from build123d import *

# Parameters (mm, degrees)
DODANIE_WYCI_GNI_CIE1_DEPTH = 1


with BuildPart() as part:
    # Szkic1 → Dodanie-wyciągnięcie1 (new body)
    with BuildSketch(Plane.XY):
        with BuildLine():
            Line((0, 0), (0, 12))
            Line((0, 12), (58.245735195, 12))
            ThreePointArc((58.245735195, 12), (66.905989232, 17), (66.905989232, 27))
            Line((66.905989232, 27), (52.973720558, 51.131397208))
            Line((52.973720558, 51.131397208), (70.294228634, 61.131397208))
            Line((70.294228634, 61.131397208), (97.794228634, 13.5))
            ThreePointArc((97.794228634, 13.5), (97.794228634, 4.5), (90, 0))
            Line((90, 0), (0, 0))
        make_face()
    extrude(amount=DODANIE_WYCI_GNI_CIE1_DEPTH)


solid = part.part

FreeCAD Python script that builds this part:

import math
import FreeCAD as App
import Part
import Sketcher
Q = App.Units.Quantity

doc = App.newDocument("Part")
body = doc.addObject("PartDesign::Body", "Body")

# Sketch on XY plane
sketch1 = doc.addObject("Sketcher::SketchObject", "Sketch")
body.addObject(sketch1)
sketch1.AttachmentSupport = (doc.XY_Plane, [""])
sketch1.MapMode = "FlatFace"
sketch1.addGeometry([
    Part.LineSegment(App.Vector(0, 12, 0), App.Vector(0, 0, 0)),  # 0
    Part.LineSegment(App.Vector(0, 0, 0), App.Vector(90, 0, 0)),  # 1
    Part.ArcOfCircle(Part.Circle(App.Vector(90, 9, 0), App.Vector(0, 0, 1), 9), math.radians(-90), math.radians(30)),  # 2
    Part.LineSegment(App.Vector(98, 14, 0), App.Vector(70, 61, 0)),  # 3
    Part.LineSegment(App.Vector(70, 61, 0), App.Vector(53, 51, 0)),  # 4
    Part.LineSegment(App.Vector(53, 51, 0), App.Vector(67, 27, 0)),  # 5
    Part.ArcOfCircle(Part.Circle(App.Vector(58, 22, 0), App.Vector(0, 0, 1), 10), math.radians(-90), math.radians(30)),  # 6
    Part.LineSegment(App.Vector(58, 12, 0), App.Vector(0, 12, 0)),  # 7
], False)
sketch1.addConstraint([
    Sketcher.Constraint("Coincident", 0, 2, 1, 1),
    Sketcher.Constraint("Tangent", 1, 2, 2, 1),
    Sketcher.Constraint("Tangent", 2, 2, 3, 1),
    Sketcher.Constraint("Coincident", 3, 2, 4, 1),
    Sketcher.Constraint("Coincident", 4, 2, 5, 1),
    Sketcher.Constraint("Tangent", 5, 2, 6, 2),
    Sketcher.Constraint("Tangent", 6, 1, 7, 1),
    Sketcher.Constraint("Coincident", 7, 2, 0, 1),
    Sketcher.Constraint("Vertical", 0),
    Sketcher.Constraint("Horizontal", 1),
    Sketcher.Constraint("Horizontal", 7),
    Sketcher.Constraint("Coincident", 0, 2, -1, 1),
    Sketcher.Constraint("Perpendicular", 3, 4),
    Sketcher.Constraint("Perpendicular", 4, 5),
    Sketcher.Constraint("Radius", 2, Q("9 mm")),
    Sketcher.Constraint("Radius", 6, Q("10 mm")),
    Sketcher.Constraint("DistanceX", 1, 1, 1, 2, Q("90 mm")),
    Sketcher.Constraint("DistanceY", 0, 2, 0, 1, Q("12 mm")),
    Sketcher.Constraint("Angle", 3, Q("120 deg")),
    Sketcher.Constraint("Distance", 3, Q("55 mm")),
    Sketcher.Constraint("Distance", 4, Q("20 mm")),
])
pad1 = doc.addObject("PartDesign::Pad", "Pad")
body.addObject(pad1)
pad1.Profile = sketch1
pad1.Length = 1

doc.recompute()
